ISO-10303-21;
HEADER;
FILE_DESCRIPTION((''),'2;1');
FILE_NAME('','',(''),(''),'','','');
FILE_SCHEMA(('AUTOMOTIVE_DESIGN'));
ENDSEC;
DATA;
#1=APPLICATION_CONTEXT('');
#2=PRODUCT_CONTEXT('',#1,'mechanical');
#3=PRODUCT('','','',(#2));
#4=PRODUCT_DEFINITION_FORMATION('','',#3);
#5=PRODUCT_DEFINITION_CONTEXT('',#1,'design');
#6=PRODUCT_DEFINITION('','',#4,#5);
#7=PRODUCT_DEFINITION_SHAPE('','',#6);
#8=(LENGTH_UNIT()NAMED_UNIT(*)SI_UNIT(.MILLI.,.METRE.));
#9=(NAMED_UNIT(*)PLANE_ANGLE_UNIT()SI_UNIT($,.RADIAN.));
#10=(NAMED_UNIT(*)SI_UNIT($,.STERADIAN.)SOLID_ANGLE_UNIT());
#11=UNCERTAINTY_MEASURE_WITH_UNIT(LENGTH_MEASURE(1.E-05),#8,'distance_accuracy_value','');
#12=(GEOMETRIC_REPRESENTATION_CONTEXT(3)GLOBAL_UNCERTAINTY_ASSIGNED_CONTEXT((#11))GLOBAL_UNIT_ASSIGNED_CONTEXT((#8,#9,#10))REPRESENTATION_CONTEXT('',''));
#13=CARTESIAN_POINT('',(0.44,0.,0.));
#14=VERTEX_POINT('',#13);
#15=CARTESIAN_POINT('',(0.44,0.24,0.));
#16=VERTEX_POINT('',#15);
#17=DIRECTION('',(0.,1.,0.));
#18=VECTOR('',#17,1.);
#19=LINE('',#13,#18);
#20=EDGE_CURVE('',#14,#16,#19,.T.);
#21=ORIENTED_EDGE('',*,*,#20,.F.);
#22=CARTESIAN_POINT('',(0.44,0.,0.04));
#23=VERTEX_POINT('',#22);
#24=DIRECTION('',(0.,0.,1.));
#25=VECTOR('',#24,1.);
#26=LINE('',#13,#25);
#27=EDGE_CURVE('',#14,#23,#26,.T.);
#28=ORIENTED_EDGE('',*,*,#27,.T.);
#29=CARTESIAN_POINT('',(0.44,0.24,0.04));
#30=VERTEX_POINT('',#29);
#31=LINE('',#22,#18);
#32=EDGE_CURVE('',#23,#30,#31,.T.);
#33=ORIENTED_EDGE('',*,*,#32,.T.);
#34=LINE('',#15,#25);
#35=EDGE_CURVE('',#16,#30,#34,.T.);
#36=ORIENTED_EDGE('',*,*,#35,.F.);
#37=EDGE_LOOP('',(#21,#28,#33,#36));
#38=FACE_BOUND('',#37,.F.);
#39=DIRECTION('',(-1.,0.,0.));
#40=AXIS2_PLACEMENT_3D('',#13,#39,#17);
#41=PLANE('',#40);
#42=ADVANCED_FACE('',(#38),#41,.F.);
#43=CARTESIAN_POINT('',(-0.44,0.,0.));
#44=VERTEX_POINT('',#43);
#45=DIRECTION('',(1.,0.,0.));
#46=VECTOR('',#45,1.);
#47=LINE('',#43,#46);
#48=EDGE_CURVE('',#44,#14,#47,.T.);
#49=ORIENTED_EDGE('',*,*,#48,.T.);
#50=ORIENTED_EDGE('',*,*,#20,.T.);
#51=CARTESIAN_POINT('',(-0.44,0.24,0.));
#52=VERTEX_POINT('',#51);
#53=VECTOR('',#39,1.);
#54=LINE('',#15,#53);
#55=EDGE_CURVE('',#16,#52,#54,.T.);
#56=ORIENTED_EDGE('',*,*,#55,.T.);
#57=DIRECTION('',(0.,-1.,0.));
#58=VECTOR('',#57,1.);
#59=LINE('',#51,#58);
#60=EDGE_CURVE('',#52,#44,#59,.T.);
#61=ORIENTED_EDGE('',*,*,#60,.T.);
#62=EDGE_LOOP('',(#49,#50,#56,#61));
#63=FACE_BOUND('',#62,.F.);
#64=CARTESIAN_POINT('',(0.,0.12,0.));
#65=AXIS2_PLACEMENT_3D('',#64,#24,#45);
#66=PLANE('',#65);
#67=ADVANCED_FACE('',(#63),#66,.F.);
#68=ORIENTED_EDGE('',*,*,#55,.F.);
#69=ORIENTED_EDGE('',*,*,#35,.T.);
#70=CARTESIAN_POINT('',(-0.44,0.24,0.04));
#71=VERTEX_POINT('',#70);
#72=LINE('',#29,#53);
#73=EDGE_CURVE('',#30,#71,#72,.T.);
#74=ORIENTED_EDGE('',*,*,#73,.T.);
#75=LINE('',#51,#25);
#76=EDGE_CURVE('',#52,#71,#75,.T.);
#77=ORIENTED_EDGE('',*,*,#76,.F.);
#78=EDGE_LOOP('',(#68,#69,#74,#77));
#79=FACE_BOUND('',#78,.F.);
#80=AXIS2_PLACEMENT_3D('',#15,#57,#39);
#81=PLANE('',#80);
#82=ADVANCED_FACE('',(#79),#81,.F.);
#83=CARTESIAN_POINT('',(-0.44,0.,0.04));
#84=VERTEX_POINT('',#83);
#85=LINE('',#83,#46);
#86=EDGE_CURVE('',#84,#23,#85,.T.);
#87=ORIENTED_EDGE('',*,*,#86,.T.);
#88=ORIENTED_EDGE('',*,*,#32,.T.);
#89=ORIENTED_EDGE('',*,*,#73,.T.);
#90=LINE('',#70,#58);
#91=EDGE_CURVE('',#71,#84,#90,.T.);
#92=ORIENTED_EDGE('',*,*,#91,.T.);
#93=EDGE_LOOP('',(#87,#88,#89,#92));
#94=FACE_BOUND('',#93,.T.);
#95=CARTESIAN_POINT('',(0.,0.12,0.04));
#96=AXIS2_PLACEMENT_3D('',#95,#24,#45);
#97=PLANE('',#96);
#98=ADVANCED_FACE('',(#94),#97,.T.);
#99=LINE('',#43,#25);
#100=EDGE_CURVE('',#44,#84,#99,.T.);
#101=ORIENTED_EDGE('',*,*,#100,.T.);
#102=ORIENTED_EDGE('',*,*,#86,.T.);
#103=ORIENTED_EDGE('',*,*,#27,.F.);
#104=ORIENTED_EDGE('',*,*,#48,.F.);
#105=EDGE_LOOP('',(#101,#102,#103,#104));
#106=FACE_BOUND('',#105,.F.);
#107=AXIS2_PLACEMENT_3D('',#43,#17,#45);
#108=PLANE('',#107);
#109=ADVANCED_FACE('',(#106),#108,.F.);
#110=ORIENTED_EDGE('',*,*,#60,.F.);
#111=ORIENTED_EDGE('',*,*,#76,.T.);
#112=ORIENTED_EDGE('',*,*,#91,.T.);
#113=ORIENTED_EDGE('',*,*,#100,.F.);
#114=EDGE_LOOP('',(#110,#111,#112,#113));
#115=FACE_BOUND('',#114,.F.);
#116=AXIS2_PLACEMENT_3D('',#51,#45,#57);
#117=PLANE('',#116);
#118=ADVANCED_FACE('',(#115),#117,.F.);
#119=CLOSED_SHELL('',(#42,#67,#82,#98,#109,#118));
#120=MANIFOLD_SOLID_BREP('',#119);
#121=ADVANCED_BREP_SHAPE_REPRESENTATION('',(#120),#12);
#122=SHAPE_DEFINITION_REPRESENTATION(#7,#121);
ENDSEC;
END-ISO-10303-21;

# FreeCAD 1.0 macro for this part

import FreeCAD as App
import Part
import Sketcher

V = App.Vector
Q = App.Units.Quantity


def add_polygon(sketch, points):
    """Adds a closed chain of lines whose ends are joined by coincident constraints."""
    first, n = sketch.GeometryCount, len(points)
    for a, b in zip(points, points[1:] + points[:1]):
        sketch.addGeometry(Part.LineSegment(App.Vector(*a, 0), App.Vector(*b, 0)), False)
    for i in range(n):
        sketch.addConstraint(Sketcher.Constraint("Coincident", first + i, 2, first + (i + 1) % n, 1))

doc = App.newDocument("Part")
params = doc.addObject("Spreadsheet::Sheet", "Params")
for row, (alias, value) in enumerate([
    ("sketch1_height", "0.24 mm"),
    ("pad1_length", "0.04 mm"),
], start=1):
    params.set(f"A{row}", alias)
    params.set(f"B{row}", "=" + value)
    params.setAlias(f"B{row}", alias)

body = doc.addObject("PartDesign::Body", "Body")

# Sketch on XY plane
sketch1 = body.newObject("Sketcher::SketchObject", "Sketch")
sketch1.AttachmentSupport = (doc.getObject("XY_Plane"), [""])
sketch1.MapMode = "FlatFace"
add_polygon(sketch1, [(-0.44, 0.24), (-0.44, 0), (0.44, 0), (0.44, 0.24)])  # lines 0-3
sketch1.addConstraint(Sketcher.Constraint("Vertical", 0))
sketch1.addConstraint(Sketcher.Constraint("Horizontal", 1))
sketch1.addConstraint(Sketcher.Constraint("Vertical", 2))
sketch1.addConstraint(Sketcher.Constraint("Horizontal", 3))
sketch1.addConstraint(Sketcher.Constraint("Symmetric", 0, 2, 1, 2, -1, 1))
sketch1.addConstraint(Sketcher.Constraint("DistanceX", 0, 2, -1, 1, Q("0.44 mm")))
sketch1.addConstraint(Sketcher.Constraint("DistanceY", 0, 2, 0, 1, Q("0.24 mm")))
sketch1.setExpression("Constraints[10]", "Params.sketch1_height")
pad1 = body.newObject("PartDesign::Pad", "Pad")
pad1.Profile = sketch1
pad1.setExpression("Length", "Params.pad1_length")

doc.recompute()
